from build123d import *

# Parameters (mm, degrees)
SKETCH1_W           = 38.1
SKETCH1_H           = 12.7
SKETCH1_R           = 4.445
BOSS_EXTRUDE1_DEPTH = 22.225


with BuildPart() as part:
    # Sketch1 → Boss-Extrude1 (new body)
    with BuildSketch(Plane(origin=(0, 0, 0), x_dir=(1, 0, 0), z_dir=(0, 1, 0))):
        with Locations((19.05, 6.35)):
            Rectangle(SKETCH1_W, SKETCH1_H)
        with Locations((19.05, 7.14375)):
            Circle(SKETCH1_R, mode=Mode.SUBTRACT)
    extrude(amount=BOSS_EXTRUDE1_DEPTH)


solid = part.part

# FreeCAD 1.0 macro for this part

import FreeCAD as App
import Part
import Sketcher

V = App.Vector
Q = App.Units.Quantity

doc = App.newDocument("Part")
body = doc.addObject("PartDesign::Body", "Body")

sketch1 = doc.addObject("Sketcher::SketchObject", "Sketch")
body.addObject(sketch1)
sketch1.AttachmentSupport = (doc.XZ_Plane, [""])
sketch1.MapMode = "FlatFace"
sketch1.addGeometry([
    Part.LineSegment(V(0, -12.7, 0), V(0, 0, 0)),
    Part.LineSegment(V(0, 0, 0), V(38.1, 0, 0)),
    Part.LineSegment(V(38.1, 0, 0), V(38.1, -12.7, 0)),
    Part.LineSegment(V(38.1, -12.7, 0), V(0, -12.7, 0)),
    Part.Circle(V(19.1, -7.1, 0), V(0, 0, 1), 4.4),
], False)
sketch1.addConstraint([
    Sketcher.Constraint("Coincident", 0, 2, 1, 1),
    Sketcher.Constraint("Coincident", 1, 2, 2, 1),
    Sketcher.Constraint("Coincident", 2, 2, 3, 1),
    Sketcher.Constraint("Coincident", 3, 2, 0, 1),
    Sketcher.Constraint("Vertical", 0),
    Sketcher.Constraint("Horizontal", 1),
    Sketcher.Constraint("Vertical", 2),
    Sketcher.Constraint("Horizontal", 3),
    Sketcher.Constraint("Coincident", 0, 2, -1, 1),
    Sketcher.Constraint("Diameter", 4, Q("0.35 in")),
    Sketcher.Constraint("DistanceX", 1, 1, 1, 2, Q("1.5 in")),
    Sketcher.Constraint("DistanceY", 0, 1, 0, 2, Q("0.5 in")),
    Sketcher.Constraint("DistanceX", -1, 1, 4, 3, Q("0.75 in")),
    Sketcher.Constraint("DistanceY", 4, 3, -1, 1, Q("0.28125 in")),
])
pad1 = doc.addObject("PartDesign::Pad", "Pad")
body.addObject(pad1)
pad1.Profile = sketch1
pad1.Length = Q("0.875 in")
pad1.Reversed = True

doc.recompute()
